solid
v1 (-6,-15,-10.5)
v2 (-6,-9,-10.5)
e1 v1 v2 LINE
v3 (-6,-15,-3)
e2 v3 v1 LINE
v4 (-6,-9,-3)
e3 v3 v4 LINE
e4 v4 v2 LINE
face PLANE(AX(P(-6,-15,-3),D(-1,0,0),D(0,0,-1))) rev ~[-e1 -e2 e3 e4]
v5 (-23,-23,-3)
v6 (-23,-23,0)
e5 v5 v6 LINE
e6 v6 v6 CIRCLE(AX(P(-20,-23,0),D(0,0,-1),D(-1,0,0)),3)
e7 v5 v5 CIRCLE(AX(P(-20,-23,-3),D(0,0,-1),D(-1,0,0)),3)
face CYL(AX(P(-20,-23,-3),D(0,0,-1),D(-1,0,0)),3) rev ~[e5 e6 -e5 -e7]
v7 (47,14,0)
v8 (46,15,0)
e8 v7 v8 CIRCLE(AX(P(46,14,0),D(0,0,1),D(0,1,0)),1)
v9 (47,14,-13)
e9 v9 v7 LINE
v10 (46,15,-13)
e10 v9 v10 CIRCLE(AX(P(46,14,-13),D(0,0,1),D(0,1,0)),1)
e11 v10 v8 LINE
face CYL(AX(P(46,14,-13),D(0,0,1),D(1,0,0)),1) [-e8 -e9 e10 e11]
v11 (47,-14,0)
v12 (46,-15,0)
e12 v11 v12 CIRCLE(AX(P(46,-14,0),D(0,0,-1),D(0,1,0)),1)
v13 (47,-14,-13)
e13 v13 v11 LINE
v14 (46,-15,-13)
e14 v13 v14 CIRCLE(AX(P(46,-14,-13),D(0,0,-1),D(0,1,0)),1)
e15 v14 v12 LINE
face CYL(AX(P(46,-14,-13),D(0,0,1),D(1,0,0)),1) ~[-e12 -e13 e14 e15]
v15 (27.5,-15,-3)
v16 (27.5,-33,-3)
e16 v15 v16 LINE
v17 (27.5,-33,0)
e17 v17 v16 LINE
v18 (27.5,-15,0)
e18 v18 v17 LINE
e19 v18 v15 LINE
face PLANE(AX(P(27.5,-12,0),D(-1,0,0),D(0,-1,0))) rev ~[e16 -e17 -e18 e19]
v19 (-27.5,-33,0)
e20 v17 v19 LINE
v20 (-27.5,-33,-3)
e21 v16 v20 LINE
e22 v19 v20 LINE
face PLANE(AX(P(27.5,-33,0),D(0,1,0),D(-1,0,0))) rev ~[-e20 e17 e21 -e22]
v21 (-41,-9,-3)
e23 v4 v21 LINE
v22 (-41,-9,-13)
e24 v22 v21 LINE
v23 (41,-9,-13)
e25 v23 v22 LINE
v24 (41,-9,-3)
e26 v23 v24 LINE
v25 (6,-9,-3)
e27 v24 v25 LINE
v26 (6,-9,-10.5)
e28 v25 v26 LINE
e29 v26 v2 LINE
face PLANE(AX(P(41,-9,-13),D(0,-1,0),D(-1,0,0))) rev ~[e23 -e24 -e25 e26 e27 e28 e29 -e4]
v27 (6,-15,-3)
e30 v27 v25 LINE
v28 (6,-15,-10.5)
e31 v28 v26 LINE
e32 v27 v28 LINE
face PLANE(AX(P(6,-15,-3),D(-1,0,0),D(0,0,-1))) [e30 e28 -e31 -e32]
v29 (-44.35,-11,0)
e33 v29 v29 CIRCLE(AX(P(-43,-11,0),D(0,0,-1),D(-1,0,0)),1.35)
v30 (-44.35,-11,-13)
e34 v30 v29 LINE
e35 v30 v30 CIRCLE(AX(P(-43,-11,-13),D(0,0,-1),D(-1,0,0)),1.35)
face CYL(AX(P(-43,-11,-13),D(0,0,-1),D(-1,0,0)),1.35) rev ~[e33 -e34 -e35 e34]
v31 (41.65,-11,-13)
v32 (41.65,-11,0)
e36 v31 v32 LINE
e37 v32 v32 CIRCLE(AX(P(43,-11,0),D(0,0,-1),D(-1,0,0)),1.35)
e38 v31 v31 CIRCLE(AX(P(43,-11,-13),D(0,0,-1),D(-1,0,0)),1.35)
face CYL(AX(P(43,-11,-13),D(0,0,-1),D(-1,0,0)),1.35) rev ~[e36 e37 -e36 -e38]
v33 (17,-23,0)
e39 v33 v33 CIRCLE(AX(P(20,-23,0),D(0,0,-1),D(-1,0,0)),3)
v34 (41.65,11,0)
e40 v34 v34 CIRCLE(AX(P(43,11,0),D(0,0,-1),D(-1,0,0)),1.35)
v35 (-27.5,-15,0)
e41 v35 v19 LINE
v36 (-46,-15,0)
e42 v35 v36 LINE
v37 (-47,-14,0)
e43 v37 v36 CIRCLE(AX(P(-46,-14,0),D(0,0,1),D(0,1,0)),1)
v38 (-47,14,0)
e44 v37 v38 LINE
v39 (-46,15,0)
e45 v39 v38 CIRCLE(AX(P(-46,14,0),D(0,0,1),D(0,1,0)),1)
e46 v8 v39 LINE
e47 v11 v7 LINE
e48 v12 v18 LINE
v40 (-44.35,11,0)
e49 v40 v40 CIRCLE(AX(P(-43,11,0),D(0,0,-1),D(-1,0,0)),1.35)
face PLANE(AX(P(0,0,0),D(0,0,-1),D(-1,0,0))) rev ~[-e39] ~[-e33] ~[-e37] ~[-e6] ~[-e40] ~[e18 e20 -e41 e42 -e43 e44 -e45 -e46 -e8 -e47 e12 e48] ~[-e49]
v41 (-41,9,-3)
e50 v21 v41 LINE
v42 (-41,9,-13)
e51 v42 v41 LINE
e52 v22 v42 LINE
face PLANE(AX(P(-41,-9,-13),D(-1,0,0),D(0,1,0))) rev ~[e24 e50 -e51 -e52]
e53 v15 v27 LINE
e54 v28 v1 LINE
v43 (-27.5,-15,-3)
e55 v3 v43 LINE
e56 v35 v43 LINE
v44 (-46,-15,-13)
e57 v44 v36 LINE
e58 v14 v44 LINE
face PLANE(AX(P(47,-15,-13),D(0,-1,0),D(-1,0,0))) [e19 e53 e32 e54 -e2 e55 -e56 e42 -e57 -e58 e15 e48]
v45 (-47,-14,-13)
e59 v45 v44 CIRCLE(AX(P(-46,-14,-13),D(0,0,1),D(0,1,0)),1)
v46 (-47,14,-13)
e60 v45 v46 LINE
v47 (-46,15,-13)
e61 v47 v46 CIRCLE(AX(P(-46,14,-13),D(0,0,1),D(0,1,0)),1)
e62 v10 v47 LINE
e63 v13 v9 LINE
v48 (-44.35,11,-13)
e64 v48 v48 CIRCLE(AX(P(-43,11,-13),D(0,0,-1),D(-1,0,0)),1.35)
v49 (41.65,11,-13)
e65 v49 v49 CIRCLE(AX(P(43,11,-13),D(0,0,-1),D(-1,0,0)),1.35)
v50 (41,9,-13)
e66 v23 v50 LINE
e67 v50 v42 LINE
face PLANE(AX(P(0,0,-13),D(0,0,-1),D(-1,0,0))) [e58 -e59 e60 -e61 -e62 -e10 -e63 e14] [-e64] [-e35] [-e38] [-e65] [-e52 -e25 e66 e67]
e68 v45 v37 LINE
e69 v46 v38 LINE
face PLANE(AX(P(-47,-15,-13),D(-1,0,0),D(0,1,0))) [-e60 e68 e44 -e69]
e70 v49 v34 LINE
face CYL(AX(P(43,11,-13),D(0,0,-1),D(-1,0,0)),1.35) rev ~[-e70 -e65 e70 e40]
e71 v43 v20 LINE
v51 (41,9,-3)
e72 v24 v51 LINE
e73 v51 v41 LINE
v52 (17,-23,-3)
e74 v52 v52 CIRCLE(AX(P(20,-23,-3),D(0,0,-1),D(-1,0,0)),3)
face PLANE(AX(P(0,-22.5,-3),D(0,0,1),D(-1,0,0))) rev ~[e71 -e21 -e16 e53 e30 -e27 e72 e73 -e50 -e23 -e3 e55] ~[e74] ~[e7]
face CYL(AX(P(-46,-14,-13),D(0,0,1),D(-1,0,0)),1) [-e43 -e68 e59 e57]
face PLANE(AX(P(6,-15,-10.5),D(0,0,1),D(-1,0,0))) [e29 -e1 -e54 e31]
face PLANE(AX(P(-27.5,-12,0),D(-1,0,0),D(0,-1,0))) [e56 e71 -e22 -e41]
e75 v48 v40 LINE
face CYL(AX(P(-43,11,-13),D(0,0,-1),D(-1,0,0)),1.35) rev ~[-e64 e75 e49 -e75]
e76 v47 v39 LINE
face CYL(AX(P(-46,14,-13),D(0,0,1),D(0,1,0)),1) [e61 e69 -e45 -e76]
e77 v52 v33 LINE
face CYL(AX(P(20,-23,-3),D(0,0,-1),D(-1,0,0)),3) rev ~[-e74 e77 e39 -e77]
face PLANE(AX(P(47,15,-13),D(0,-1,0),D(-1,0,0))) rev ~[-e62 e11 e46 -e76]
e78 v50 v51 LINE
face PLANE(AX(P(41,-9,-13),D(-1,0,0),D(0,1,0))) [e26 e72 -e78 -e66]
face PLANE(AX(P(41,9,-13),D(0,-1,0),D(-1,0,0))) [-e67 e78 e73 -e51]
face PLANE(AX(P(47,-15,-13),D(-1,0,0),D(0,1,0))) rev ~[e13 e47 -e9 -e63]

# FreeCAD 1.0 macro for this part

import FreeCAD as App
import Part
import Sketcher
from FreeCAD import Vector


def edges_at(feature, points):
    """Names of the edges that pass closest to the given points."""
    edges = feature.Shape.Edges
    near = lambda p: min(range(len(edges)), key=lambda i: edges[i].distToShape(Part.Vertex(*p))[0])
    return sorted({f"Edge{near(p) + 1}" for p in points})


def add_polygon(sketch, points):
    """Adds a closed chain of lines whose ends are joined by coincident constraints."""
    first, n = sketch.GeometryCount, len(points)
    for a, b in zip(points, points[1:] + points[:1]):
        sketch.addGeometry(Part.LineSegment(App.Vector(*a, 0), App.Vector(*b, 0)), False)
    for i in range(n):
        sketch.addConstraint(Sketcher.Constraint("Coincident", first + i, 2, first + (i + 1) % n, 1))

doc = App.newDocument("Part")
body = doc.addObject("PartDesign::Body", "Body")

# Sketch on XY plane
sketch1 = doc.addObject("Sketcher::SketchObject", "Sketch")
body.addObject(sketch1)
sketch1.AttachmentSupport = (doc.XY_Plane, [""])
sketch1.MapMode = "FlatFace"
add_polygon(sketch1, [(-47, 15), (-47, -15), (47, -15), (47, 15)])  # lines 0-3
sketch1.addConstraint([
    Sketcher.Constraint("Vertical", 0),
    Sketcher.Constraint("Horizontal", 1),
    Sketcher.Constraint("Vertical", 2),
    Sketcher.Constraint("Horizontal", 3),
    Sketcher.Constraint("Symmetric", 0, 2, 2, 2, -1, 1),
    Sketcher.Constraint("DistanceX", 1, 1, 1, 2, 94.0),
    Sketcher.Constraint("DistanceY", 0, 2, 0, 1, 30.0),
])
pad1 = doc.addObject("PartDesign::Pad", "Pad")
body.addObject(pad1)
pad1.Profile = sketch1
pad1.Length = 13
pad1.Reversed = True

# Sketch on XY plane
sketch2 = doc.addObject("Sketcher::SketchObject", "Sketch001")
body.addObject(sketch2)
sketch2.AttachmentSupport = (doc.XY_Plane, [""])
sketch2.MapMode = "FlatFace"
sketch2.addGeometry([
    Part.Circle(Vector(-43, 11, 0), Vector(0, 0, 1), 1.35),
    Part.Circle(Vector(-43, -11, 0), Vector(0, 0, 1), 1.35),
    Part.Circle(Vector(43, 11, 0), Vector(0, 0, 1), 1.35),
    Part.Circle(Vector(43, -11, 0), Vector(0, 0, 1), 1.35),
], False)
sketch2.addConstraint([
    Sketcher.Constraint("Equal", 0, 1),
    Sketcher.Constraint("Equal", 1, 2),
    Sketcher.Constraint("Equal", 2, 3),
    Sketcher.Constraint("Symmetric", 1, 3, 2, 3, -1, 1),
    Sketcher.Constraint("Symmetric", 0, 3, 3, 3, -1, 1),
    Sketcher.Constraint("Symmetric", 0, 3, 2, 3, -2),
    Sketcher.Constraint("Diameter", 0, 2.7),
    Sketcher.Constraint("DistanceX", 0, 3, -1, 1, 43.0),
    Sketcher.Constraint("DistanceY", -1, 1, 0, 3, 11.0),
])
pocket1 = doc.addObject("PartDesign::Pocket", "Pocket")
body.addObject(pocket1)
pocket1.Profile = sketch2
pocket1.Length = 25

# Sketch on XY plane
sketch3 = doc.addObject("Sketcher::SketchObject", "Sketch002")
body.addObject(sketch3)
sketch3.AttachmentSupport = (doc.XY_Plane, [""])
sketch3.MapMode = "FlatFace"
add_polygon(sketch3, [(-41, 9), (-41, -9), (41, -9), (41, 9)])  # lines 0-3
sketch3.addConstraint([
    Sketcher.Constraint("Vertical", 0),
    Sketcher.Constraint("Horizontal", 1),
    Sketcher.Constraint("Vertical", 2),
    Sketcher.Constraint("Horizontal", 3),
    Sketcher.Constraint("Symmetric", 0, 2, 2, 2, -1, 1),
    Sketcher.Constraint("DistanceX", 1, 1, 1, 2, 82.0),
    Sketcher.Constraint("DistanceY", 0, 2, 0, 1, 18.0),
])
pocket2 = doc.addObject("PartDesign::Pocket", "Pocket001")
body.addObject(pocket2)
pocket2.Profile = sketch3
pocket2.Length = 10

# Sketch on XY plane
sketch4 = doc.addObject("Sketcher::SketchObject", "Sketch003")
body.addObject(sketch4)
sketch4.AttachmentSupport = (doc.XY_Plane, [""])
sketch4.MapMode = "FlatFace"
sketch4.AttachmentOffset = App.Placement(Vector(0, 0, -13), App.Rotation())
add_polygon(sketch4, [(-27.5, -33), (-27.5, -12), (27.5, -12), (27.5, -33)])  # lines 0-3
sketch4.addConstraint([
    Sketcher.Constraint("Vertical", 0),
    Sketcher.Constraint("Horizontal", 1),
    Sketcher.Constraint("Vertical", 2),
    Sketcher.Constraint("Horizontal", 3),
    Sketcher.Constraint("DistanceX", 1, 1, 1, 2, 55.0),
    Sketcher.Constraint("DistanceY", 0, 1, 0, 2, 21.0),
    Sketcher.Constraint("DistanceY", 0, 2, -1, 1, 12.0),
    Sketcher.Constraint("DistanceX", 0, 2, -1, 1, 27.5),
])
pad2 = doc.addObject("PartDesign::Pad", "Pad001")
body.addObject(pad2)
pad2.Profile = sketch4
pad2.Length = 3
doc.recompute()

fillet = doc.addObject("PartDesign::Fillet", "Fillet")
body.addObject(fillet)
fillet.Base = (pad2, edges_at(pad2, [
    (47, -15, -6.5),
    (47, 15, -6.5),
    (-47, 15, -6.5),
    (-47, -15, -6.5),
]))
fillet.Radius = 1

# Sketch on XY plane
sketch5 = doc.addObject("Sketcher::SketchObject", "Sketch004")
body.addObject(sketch5)
sketch5.AttachmentSupport = (doc.XY_Plane, [""])
sketch5.MapMode = "FlatFace"
sketch5.AttachmentOffset = App.Placement(Vector(0, 0, -10), App.Rotation())
sketch5.addGeometry([
    Part.Circle(Vector(20, -23, 0), Vector(0, 0, 1), 3),
    Part.Circle(Vector(-20, -23, 0), Vector(0, 0, 1), 3),
], False)
sketch5.addConstraint([
    Sketcher.Constraint("Equal", 0, 1),
    Sketcher.Constraint("Symmetric", 0, 3, 1, 3, -2),
    Sketcher.Constraint("Diameter", 0, 6.0),
    Sketcher.Constraint("DistanceX", -1, 1, 0, 3, 20.0),
    Sketcher.Constraint("DistanceY", 0, 3, -1, 1, 23.0),
])
pocket3 = doc.addObject("PartDesign::Pocket", "Pocket002")
body.addObject(pocket3)
pocket3.Profile = sketch5
pocket3.Length = 25

# Sketch on XZ plane
sketch6 = doc.addObject("Sketcher::SketchObject", "Sketch005")
body.addObject(sketch6)
sketch6.AttachmentSupport = (doc.XZ_Plane, [""])
sketch6.MapMode = "FlatFace"
sketch6.AttachmentOffset = App.Placement(Vector(0, 0, 15), App.Rotation())
add_polygon(sketch6, [(-6, -2.5), (-6, -10), (6, -10), (6, -2.5)])  # lines 0-3
sketch6.addConstraint([
    Sketcher.Constraint("Vertical", 0),
    Sketcher.Constraint("Horizontal", 1),
    Sketcher.Constraint("Vertical", 2),
    Sketcher.Constraint("Horizontal", 3),
    Sketcher.Constraint("DistanceX", 1, 1, 1, 2, 12.0),
    Sketcher.Constraint("DistanceY", 0, 2, 0, 1, 7.5),
    Sketcher.Constraint("DistanceX", 0, 2, -1, 1, 6.0),
    Sketcher.Constraint("DistanceY", 0, 2, -1, 1, 10.0),
])
pocket4 = doc.addObject("PartDesign::Pocket", "Pocket003")
body.addObject(pocket4)
pocket4.Profile = sketch6
pocket4.Length = 6
body2 = doc.addObject("PartDesign::Body", "Body001")
doc.recompute()

body.Placement = App.Placement(Vector(0, 0, -13), App.Rotation(Vector(0, 1, 0), 180))
boolean = doc.addObject("PartDesign::Boolean", "Boolean")
body2.addObject(boolean)
boolean.Type = "Fuse"
boolean.addObjects([body])

doc.recompute()
